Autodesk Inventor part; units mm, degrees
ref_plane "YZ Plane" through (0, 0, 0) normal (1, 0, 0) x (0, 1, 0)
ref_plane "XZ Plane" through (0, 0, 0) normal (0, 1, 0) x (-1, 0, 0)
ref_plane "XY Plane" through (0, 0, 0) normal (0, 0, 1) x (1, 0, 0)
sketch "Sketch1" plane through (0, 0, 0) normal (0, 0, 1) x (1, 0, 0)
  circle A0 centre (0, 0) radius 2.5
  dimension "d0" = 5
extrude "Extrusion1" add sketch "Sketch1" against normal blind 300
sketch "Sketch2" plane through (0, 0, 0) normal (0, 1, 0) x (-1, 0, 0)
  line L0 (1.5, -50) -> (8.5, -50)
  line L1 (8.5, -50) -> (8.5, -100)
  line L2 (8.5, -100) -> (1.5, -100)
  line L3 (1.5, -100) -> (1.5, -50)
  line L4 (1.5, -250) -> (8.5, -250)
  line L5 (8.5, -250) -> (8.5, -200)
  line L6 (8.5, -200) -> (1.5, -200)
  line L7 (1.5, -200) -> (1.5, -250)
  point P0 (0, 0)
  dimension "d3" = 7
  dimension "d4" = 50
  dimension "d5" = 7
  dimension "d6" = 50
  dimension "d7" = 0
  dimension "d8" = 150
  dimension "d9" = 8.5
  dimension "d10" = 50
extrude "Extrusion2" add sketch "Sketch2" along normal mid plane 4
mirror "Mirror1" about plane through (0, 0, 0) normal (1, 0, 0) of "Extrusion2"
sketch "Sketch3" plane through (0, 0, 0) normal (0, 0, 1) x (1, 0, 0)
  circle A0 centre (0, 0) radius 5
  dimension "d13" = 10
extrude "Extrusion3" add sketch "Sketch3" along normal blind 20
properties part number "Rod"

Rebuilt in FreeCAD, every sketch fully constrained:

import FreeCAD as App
import Part
import Sketcher
from FreeCAD import Vector

doc = App.newDocument("Part")
params = doc.addObject("Spreadsheet::Sheet", "Params")
for row, (alias, value) in enumerate([
    ("sketch1_diameter", "5 mm"),
    ("pad1_length", "300 mm"),
    ("sketch2_width", "7 mm"),
    ("sketch2_height", "50 mm"),
    ("pad2_length", "4 mm"),
    ("sketch3_diameter", "10 mm"),
    ("pad3_length", "20 mm"),
], start=1):
    params.set(f"A{row}", alias)
    params.set(f"B{row}", "=" + value)
    params.setAlias(f"B{row}", alias)

body = doc.addObject("PartDesign::Body", "Body")

# Sketch on XY plane
sketch1 = body.newObject("Sketcher::SketchObject", "Sketch")
sketch1.AttachmentSupport = (doc.getObject("XY_Plane"), [""])
sketch1.MapMode = "FlatFace"
sketch1.addGeometry(Part.Circle(Vector(0, 0, 0), Vector(0, 0, 1), 2.5), False)
sketch1.addConstraint([
    Sketcher.Constraint("Coincident", 0, 3, -1, 1),
    Sketcher.Constraint("Diameter", 0, 5.0),
])
sketch1.setExpression("Constraints[1]", "Params.sketch1_diameter")
pad1 = body.newObject("PartDesign::Pad", "Pad")
pad1.Profile = sketch1
pad1.setExpression("Length", "Params.pad1_length")
pad1.Reversed = True

# Sketch on XZ plane
sketch2 = body.newObject("Sketcher::SketchObject", "Sketch001")
sketch2.AttachmentSupport = (doc.getObject("XZ_Plane"), [""])
sketch2.MapMode = "FlatFace"
sketch2.addGeometry([
    Part.LineSegment(Vector(-8.5, -50, 0), Vector(-1.5, -50, 0)),  # 0
    Part.LineSegment(Vector(-1.5, -50, 0), Vector(-1.5, -100, 0)),  # 1
    Part.LineSegment(Vector(-1.5, -100, 0), Vector(-8.5, -100, 0)),  # 2
    Part.LineSegment(Vector(-8.5, -100, 0), Vector(-8.5, -50, 0)),  # 3
    Part.LineSegment(Vector(-1.5, -200, 0), Vector(-1.5, -250, 0)),  # 4
    Part.LineSegment(Vector(-1.5, -250, 0), Vector(-8.5, -250, 0)),  # 5
    Part.LineSegment(Vector(-8.5, -250, 0), Vector(-8.5, -200, 0)),  # 6
    Part.LineSegment(Vector(-8.5, -200, 0), Vector(-1.5, -200, 0)),  # 7
], False)
sketch2.addConstraint([
    Sketcher.Constraint("Coincident", 0, 2, 1, 1),
    Sketcher.Constraint("Coincident", 1, 2, 2, 1),
    Sketcher.Constraint("Coincident", 2, 2, 3, 1),
    Sketcher.Constraint("Coincident", 3, 2, 0, 1),
    Sketcher.Constraint("Coincident", 4, 2, 5, 1),
    Sketcher.Constraint("Coincident", 5, 2, 6, 1),
    Sketcher.Constraint("Coincident", 6, 2, 7, 1),
    Sketcher.Constraint("Coincident", 7, 2, 4, 1),
    Sketcher.Constraint("Horizontal", 0),
    Sketcher.Constraint("Vertical", 1),
    Sketcher.Constraint("Horizontal", 2),
    Sketcher.Constraint("Vertical", 3),
    Sketcher.Constraint("Vertical", 4),
    Sketcher.Constraint("Horizontal", 5),
    Sketcher.Constraint("Vertical", 6),
    Sketcher.Constraint("Horizontal", 7),
    Sketcher.Constraint("Vertical", 1, 2, 4, 2),
    Sketcher.Constraint("Vertical", 3, 2, 5, 2),
    Sketcher.Constraint("Equal", 3, 4),
    Sketcher.Constraint("DistanceX", 0, 1, 0, 2, 7.0),
    Sketcher.Constraint("DistanceY", 1, 2, 1, 1, 50.0),
    Sketcher.Constraint("DistanceY", 0, 2, -1, 1, 50.0),
    Sketcher.Constraint("DistanceY", 4, 2, 1, 2, 150.0),
    Sketcher.Constraint("DistanceX", 2, 2, -1, 1, 8.5),
])
sketch2.setExpression("Constraints[19]", "Params.sketch2_width")
sketch2.setExpression("Constraints[20]", "Params.sketch2_height")
pad2 = body.newObject("PartDesign::Pad", "Pad001")
pad2.Profile = sketch2
pad2.setExpression("Length", "Params.pad2_length")
pad2.Midplane = True
doc.recompute()

mirrored = body.newObject("PartDesign::Mirrored", "Mirrored")
mirrored.Originals = [pad2]
mirrored.MirrorPlane = (doc.getObject("YZ_Plane"), [""])
body.Tip = mirrored

# Sketch on XY plane
sketch3 = body.newObject("Sketcher::SketchObject", "Sketch002")
sketch3.AttachmentSupport = (doc.getObject("XY_Plane"), [""])
sketch3.MapMode = "FlatFace"
sketch3.addGeometry(Part.Circle(Vector(0, 0, 0), Vector(0, 0, 1), 5), False)
sketch3.addConstraint([
    Sketcher.Constraint("Coincident", 0, 3, -1, 1),
    Sketcher.Constraint("Diameter", 0, 10.0),
])
sketch3.setExpression("Constraints[1]", "Params.sketch3_diameter")
pad3 = body.newObject("PartDesign::Pad", "Pad002")
pad3.Profile = sketch3
pad3.setExpression("Length", "Params.pad3_length")

doc.recompute()
